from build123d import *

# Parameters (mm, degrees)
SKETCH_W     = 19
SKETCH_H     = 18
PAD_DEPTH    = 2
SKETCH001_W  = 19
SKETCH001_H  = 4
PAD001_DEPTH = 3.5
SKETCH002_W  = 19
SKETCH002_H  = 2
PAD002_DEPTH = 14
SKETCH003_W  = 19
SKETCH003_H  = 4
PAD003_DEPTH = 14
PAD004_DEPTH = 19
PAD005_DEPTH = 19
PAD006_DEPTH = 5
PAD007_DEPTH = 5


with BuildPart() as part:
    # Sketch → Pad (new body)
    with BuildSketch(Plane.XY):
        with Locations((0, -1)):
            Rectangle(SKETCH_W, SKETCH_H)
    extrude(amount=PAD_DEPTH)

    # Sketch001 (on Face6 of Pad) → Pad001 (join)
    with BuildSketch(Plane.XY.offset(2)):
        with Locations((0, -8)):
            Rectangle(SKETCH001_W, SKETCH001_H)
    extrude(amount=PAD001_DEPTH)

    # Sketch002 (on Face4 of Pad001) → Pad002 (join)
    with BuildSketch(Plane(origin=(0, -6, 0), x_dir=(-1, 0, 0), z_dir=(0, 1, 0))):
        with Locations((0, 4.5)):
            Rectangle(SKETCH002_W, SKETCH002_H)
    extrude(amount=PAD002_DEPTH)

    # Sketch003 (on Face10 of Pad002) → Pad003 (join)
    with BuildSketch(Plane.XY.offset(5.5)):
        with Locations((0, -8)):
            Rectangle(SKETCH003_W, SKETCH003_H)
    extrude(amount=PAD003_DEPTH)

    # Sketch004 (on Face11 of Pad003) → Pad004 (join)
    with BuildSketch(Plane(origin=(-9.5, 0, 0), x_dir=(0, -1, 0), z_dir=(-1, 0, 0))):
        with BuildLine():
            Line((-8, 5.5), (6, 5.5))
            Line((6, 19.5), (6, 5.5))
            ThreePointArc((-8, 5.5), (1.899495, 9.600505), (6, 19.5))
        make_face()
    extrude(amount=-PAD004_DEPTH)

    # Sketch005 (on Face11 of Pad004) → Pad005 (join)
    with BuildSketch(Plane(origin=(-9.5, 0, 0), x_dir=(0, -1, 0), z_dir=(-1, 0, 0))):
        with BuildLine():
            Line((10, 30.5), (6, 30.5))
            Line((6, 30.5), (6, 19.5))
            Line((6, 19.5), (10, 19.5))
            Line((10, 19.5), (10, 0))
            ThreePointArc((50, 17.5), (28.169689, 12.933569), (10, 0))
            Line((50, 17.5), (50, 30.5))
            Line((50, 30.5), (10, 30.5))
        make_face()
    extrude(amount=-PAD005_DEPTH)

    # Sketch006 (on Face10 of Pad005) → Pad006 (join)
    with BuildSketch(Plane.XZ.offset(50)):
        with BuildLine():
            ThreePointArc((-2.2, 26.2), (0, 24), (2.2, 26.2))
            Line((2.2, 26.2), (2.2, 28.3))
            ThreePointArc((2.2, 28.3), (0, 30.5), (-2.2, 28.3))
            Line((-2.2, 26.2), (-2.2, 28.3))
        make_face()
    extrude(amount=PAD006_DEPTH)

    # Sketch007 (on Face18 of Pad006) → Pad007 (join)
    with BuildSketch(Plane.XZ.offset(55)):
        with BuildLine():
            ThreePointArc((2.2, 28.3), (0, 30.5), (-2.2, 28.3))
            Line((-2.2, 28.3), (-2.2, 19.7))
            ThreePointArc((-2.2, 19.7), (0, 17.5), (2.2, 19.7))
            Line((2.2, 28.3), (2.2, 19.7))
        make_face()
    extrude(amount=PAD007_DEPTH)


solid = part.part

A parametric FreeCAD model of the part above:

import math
import FreeCAD as App
import Part
import Sketcher
Q = App.Units.Quantity


def add_polygon(sketch, points):
    """Adds a closed chain of lines whose ends are joined by coincident constraints."""
    first, n = sketch.GeometryCount, len(points)
    for a, b in zip(points, points[1:] + points[:1]):
        sketch.addGeometry(Part.LineSegment(App.Vector(*a, 0), App.Vector(*b, 0)), False)
    for i in range(n):
        sketch.addConstraint(Sketcher.Constraint("Coincident", first + i, 2, first + (i + 1) % n, 1))

doc = App.newDocument("Part")
body = doc.addObject("PartDesign::Body", "Body")

# Sketch on XY plane
sketch1 = body.newObject("Sketcher::SketchObject", "Sketch")
sketch1.AttachmentSupport = (doc.getObject("XY_Plane"), [""])
sketch1.MapMode = "FlatFace"
add_polygon(sketch1, [(-10, 8), (-10, -10), (10, -10), (10, 8)])  # lines 0-3
sketch1.addConstraint(Sketcher.Constraint("Vertical", 0))
sketch1.addConstraint(Sketcher.Constraint("Horizontal", 1))
sketch1.addConstraint(Sketcher.Constraint("Vertical", 2))
sketch1.addConstraint(Sketcher.Constraint("Horizontal", 3))
sketch1.addConstraint(Sketcher.Constraint("DistanceX", 1, 1, 1, 2, Q("19 mm")))
sketch1.addConstraint(Sketcher.Constraint("DistanceY", 0, 2, 0, 1, Q("18 mm")))
sketch1.addConstraint(Sketcher.Constraint("DistanceY", 0, 2, -1, 1, Q("10 mm")))
sketch1.addConstraint(Sketcher.Constraint("DistanceX", 0, 2, -1, 1, Q("9.5 mm")))
pad1 = body.newObject("PartDesign::Pad", "Pad")
pad1.Profile = sketch1
pad1.Length = 2

# Sketch on XY plane
sketch2 = body.newObject("Sketcher::SketchObject", "Sketch001")
sketch2.AttachmentSupport = (doc.getObject("XY_Plane"), [""])
sketch2.MapMode = "FlatFace"
sketch2.AttachmentOffset = App.Placement(App.Vector(0, 0, 2), App.Rotation())
add_polygon(sketch2, [(-9.5, -6), (-9.5, -10), (9.5, -10), (9.5, -6)])  # lines 0-3
sketch2.addConstraint(Sketcher.Constraint("Vertical", 0))
sketch2.addConstraint(Sketcher.Constraint("Horizontal", 1))
sketch2.addConstraint(Sketcher.Constraint("Vertical", 2))
sketch2.addConstraint(Sketcher.Constraint("Horizontal", 3))
sketch2.addConstraint(Sketcher.Constraint("DistanceX", 1, 1, 1, 2, Q("19 mm")))
sketch2.addConstraint(Sketcher.Constraint("DistanceY", 0, 2, 0, 1, Q("4 mm")))
sketch2.addConstraint(Sketcher.Constraint("DistanceY", 0, 2, -1, 1, Q("10 mm")))
sketch2.addConstraint(Sketcher.Constraint("DistanceX", 0, 2, -1, 1, Q("9.5 mm")))
pad2 = body.newObject("PartDesign::Pad", "Pad001")
pad2.Profile = sketch2
pad2.Length = 3.5

# Sketch on XZ plane
sketch3 = body.newObject("Sketcher::SketchObject", "Sketch002")
sketch3.AttachmentSupport = (doc.getObject("XZ_Plane"), [""])
sketch3.MapMode = "FlatFace"
sketch3.AttachmentOffset = App.Placement(App.Vector(0, 0, 6), App.Rotation())
add_polygon(sketch3, [(9.5, 5.5), (9.5, 3.5), (-9.5, 3.5), (-9.5, 5.5)])  # lines 0-3
sketch3.addConstraint(Sketcher.Constraint("Vertical", 0))
sketch3.addConstraint(Sketcher.Constraint("Horizontal", 1))
sketch3.addConstraint(Sketcher.Constraint("Vertical", 2))
sketch3.addConstraint(Sketcher.Constraint("Horizontal", 3))
sketch3.addConstraint(Sketcher.Constraint("DistanceX", 1, 2, 1, 1, Q("19 mm")))
sketch3.addConstraint(Sketcher.Constraint("DistanceY", 0, 2, 0, 1, Q("2 mm")))
sketch3.addConstraint(Sketcher.Constraint("DistanceX", -1, 1, 0, 2, Q("9.5 mm")))
sketch3.addConstraint(Sketcher.Constraint("DistanceY", -1, 1, 0, 2, Q("3.5 mm")))
pad3 = body.newObject("PartDesign::Pad", "Pad002")
pad3.Profile = sketch3
pad3.Length = 14
pad3.Reversed = True

# Sketch on XY plane
sketch4 = body.newObject("Sketcher::SketchObject", "Sketch003")
sketch4.AttachmentSupport = (doc.getObject("XY_Plane"), [""])
sketch4.MapMode = "FlatFace"
sketch4.AttachmentOffset = App.Placement(App.Vector(0, 0, 5.5), App.Rotation())
add_polygon(sketch4, [(-9.5, -6), (-9.5, -10), (9.5, -10), (9.5, -6)])  # lines 0-3
sketch4.addConstraint(Sketcher.Constraint("Vertical", 0))
sketch4.addConstraint(Sketcher.Constraint("Horizontal", 1))
sketch4.addConstraint(Sketcher.Constraint("Vertical", 2))
sketch4.addConstraint(Sketcher.Constraint("Horizontal", 3))
sketch4.addConstraint(Sketcher.Constraint("DistanceX", 1, 1, 1, 2, Q("19 mm")))
sketch4.addConstraint(Sketcher.Constraint("DistanceY", 0, 2, 0, 1, Q("4 mm")))
sketch4.addConstraint(Sketcher.Constraint("DistanceY", 0, 2, -1, 1, Q("10 mm")))
sketch4.addConstraint(Sketcher.Constraint("DistanceX", 0, 2, -1, 1, Q("9.5 mm")))
pad4 = body.newObject("PartDesign::Pad", "Pad003")
pad4.Profile = sketch4
pad4.Length = 14

# Sketch on YZ plane
sketch5 = body.newObject("Sketcher::SketchObject", "Sketch004")
sketch5.AttachmentSupport = (doc.getObject("YZ_Plane"), [""])
sketch5.MapMode = "FlatFace"
sketch5.AttachmentOffset = App.Placement(App.Vector(0, 0, -9.5), App.Rotation())
sketch5.addGeometry(Part.LineSegment(App.Vector(8, 6, 0), App.Vector(-6, 6, 0)), False)
sketch5.addGeometry(Part.LineSegment(App.Vector(-6, 6, 0), App.Vector(-6, 20, 0)), False)
sketch5.addGeometry(Part.ArcOfCircle(Part.Circle(App.Vector(8, 19, 0), App.Vector(0, 0, 1), 14), math.radians(180), math.radians(270)), False)
sketch5.addConstraint(Sketcher.Constraint("Coincident", 0, 2, 1, 1))
sketch5.addConstraint(Sketcher.Constraint("Tangent", 1, 2, 2, 1))
sketch5.addConstraint(Sketcher.Constraint("Tangent", 2, 2, 0, 1))
sketch5.addConstraint(Sketcher.Constraint("Horizontal", 0))
sketch5.addConstraint(Sketcher.Constraint("Vertical", 1))
sketch5.addConstraint(Sketcher.Constraint("Radius", 2, Q("14 mm")))
sketch5.addConstraint(Sketcher.Constraint("DistanceX", -1, 1, 2, 3, Q("8 mm")))
sketch5.addConstraint(Sketcher.Constraint("DistanceY", -1, 1, 2, 3, Q("19.5 mm")))
pad5 = body.newObject("PartDesign::Pad", "Pad004")
pad5.Profile = sketch5
pad5.Length = 19

# Sketch on YZ plane
sketch6 = body.newObject("Sketcher::SketchObject", "Sketch005")
sketch6.AttachmentSupport = (doc.getObject("YZ_Plane"), [""])
sketch6.MapMode = "FlatFace"
sketch6.AttachmentOffset = App.Placement(App.Vector(0, 0, -9.5), App.Rotation())
sketch6.addGeometry(Part.LineSegment(App.Vector(-6, 30.5, 0), App.Vector(-6, 19.5, 0)), False)
sketch6.addGeometry(Part.LineSegment(App.Vector(-6, 19.5, 0), App.Vector(-10, 19.5, 0)), False)
sketch6.addGeometry(Part.LineSegment(App.Vector(-10, 19.5, 0), App.Vector(-10, 0, 0)), False)
sketch6.addGeometry(Part.ArcOfCircle(Part.Circle(App.Vector(-50, -37, 0), App.Vector(0, 0, 1), 54.5), math.radians(43), math.radians(90)), False)
sketch6.addGeometry(Part.LineSegment(App.Vector(-50, 17.5, 0), App.Vector(-50, 30.5, 0)), False)
sketch6.addGeometry(Part.LineSegment(App.Vector(-50, 30.5, 0), App.Vector(-6, 30.5, 0)), False)
sketch6.addConstraint(Sketcher.Constraint("Coincident", 0, 2, 1, 1))
sketch6.addConstraint(Sketcher.Constraint("Coincident", 1, 2, 2, 1))
sketch6.addConstraint(Sketcher.Constraint("Coincident", 2, 2, 3, 1))
sketch6.addConstraint(Sketcher.Constraint("Coincident", 3, 2, 4, 1))
sketch6.addConstraint(Sketcher.Constraint("Coincident", 4, 2, 5, 1))
sketch6.addConstraint(Sketcher.Constraint("Coincident", 5, 2, 0, 1))
sketch6.addConstraint(Sketcher.Constraint("Vertical", 0))
sketch6.addConstraint(Sketcher.Constraint("Horizontal", 1))
sketch6.addConstraint(Sketcher.Constraint("Vertical", 2))
sketch6.addConstraint(Sketcher.Constraint("Vertical", 4))
sketch6.addConstraint(Sketcher.Constraint("Horizontal", 5))
sketch6.addConstraint(Sketcher.Constraint("PointOnObject", 2, 2, -1))
sketch6.addConstraint(Sketcher.Constraint("DistanceX", 1, 2, 1, 1, Q("4 mm")))
sketch6.addConstraint(Sketcher.Constraint("DistanceX", 5, 1, 5, 2, Q("44 mm")))
sketch6.addConstraint(Sketcher.Constraint("DistanceY", 0, 2, 0, 1, Q("11 mm")))
sketch6.addConstraint(Sketcher.Constraint("DistanceY", 4, 1, 4, 2, Q("13 mm")))
sketch6.addConstraint(Sketcher.Constraint("DistanceY", 2, 2, 2, 1, Q("19.5 mm")))
sketch6.addConstraint(Sketcher.Constraint("DistanceX", 3, 3, -1, 1, Q("50.000002 mm")))
sketch6.addConstraint(Sketcher.Constraint("DistanceX", 0, 2, -1, 1, Q("6 mm")))
pad6 = body.newObject("PartDesign::Pad", "Pad005")
pad6.Profile = sketch6
pad6.Length = 19

# Sketch on XZ plane
sketch7 = body.newObject("Sketcher::SketchObject", "Sketch006")
sketch7.AttachmentSupport = (doc.getObject("XZ_Plane"), [""])
sketch7.MapMode = "FlatFace"
sketch7.AttachmentOffset = App.Placement(App.Vector(0, 0, 50), App.Rotation())
sketch7.addGeometry(Part.ArcOfCircle(Part.Circle(App.Vector(0, 26.2, 0), App.Vector(0, 0, 1), 2.2), math.radians(180), math.radians(360)), False)
sketch7.addGeometry(Part.LineSegment(App.Vector(2.2, 26.2, 0), App.Vector(2.2, 28.3, 0)), False)
sketch7.addGeometry(Part.ArcOfCircle(Part.Circle(App.Vector(0, 28.3, 0), App.Vector(0, 0, 1), 2.2), math.radians(0), math.radians(180)), False)
sketch7.addGeometry(Part.LineSegment(App.Vector(-2.2, 28.3, 0), App.Vector(-2.2, 26.2, 0)), False)
sketch7.addConstraint(Sketcher.Constraint("Tangent", 0, 2, 1, 1))
sketch7.addConstraint(Sketcher.Constraint("Tangent", 1, 2, 2, 1))
sketch7.addConstraint(Sketcher.Constraint("Tangent", 2, 2, 3, 1))
sketch7.addConstraint(Sketcher.Constraint("Tangent", 3, 2, 0, 1))
sketch7.addConstraint(Sketcher.Constraint("Vertical", 1))
sketch7.addConstraint(Sketcher.Constraint("Vertical", 3))
sketch7.addConstraint(Sketcher.Constraint("PointOnObject", 0, 3, -2))
sketch7.addConstraint(Sketcher.Constraint("Radius", 0, Q("2.2 mm")))
sketch7.addConstraint(Sketcher.Constraint("DistanceY", 1, 1, 1, 2, Q("2.1 mm")))
sketch7.addConstraint(Sketcher.Constraint("DistanceY", -1, 1, 0, 3, Q("26.2 mm")))
pad7 = body.newObject("PartDesign::Pad", "Pad006")
pad7.Profile = sketch7
pad7.Length = 5

# Sketch on XZ plane
sketch8 = body.newObject("Sketcher::SketchObject", "Sketch007")
sketch8.AttachmentSupport = (doc.getObject("XZ_Plane"), [""])
sketch8.MapMode = "FlatFace"
sketch8.AttachmentOffset = App.Placement(App.Vector(0, 0, 55), App.Rotation())
sketch8.addGeometry(Part.ArcOfCircle(Part.Circle(App.Vector(0, 28.3, 0), App.Vector(0, 0, 1), 2.2), math.radians(0), math.radians(180)), False)
sketch8.addGeometry(Part.LineSegment(App.Vector(-2.2, 28.3, 0), App.Vector(-2.2, 19.7, 0)), False)
sketch8.addGeometry(Part.ArcOfCircle(Part.Circle(App.Vector(0, 19.7, 0), App.Vector(0, 0, 1), 2.2), math.radians(180), math.radians(360)), False)
sketch8.addGeometry(Part.LineSegment(App.Vector(2.2, 19.7, 0), App.Vector(2.2, 28.3, 0)), False)
sketch8.addConstraint(Sketcher.Constraint("Tangent", 0, 2, 1, 1))
sketch8.addConstraint(Sketcher.Constraint("Tangent", 1, 2, 2, 1))
sketch8.addConstraint(Sketcher.Constraint("Tangent", 2, 2, 3, 1))
sketch8.addConstraint(Sketcher.Constraint("Tangent", 3, 2, 0, 1))
sketch8.addConstraint(Sketcher.Constraint("Vertical", 1))
sketch8.addConstraint(Sketcher.Constraint("Vertical", 3))
sketch8.addConstraint(Sketcher.Constraint("PointOnObject", 0, 3, -2))
sketch8.addConstraint(Sketcher.Constraint("Radius", 0, Q("2.2 mm")))
sketch8.addConstraint(Sketcher.Constraint("DistanceY", 1, 2, 1, 1, Q("8.6 mm")))
sketch8.addConstraint(Sketcher.Constraint("DistanceY", -1, 1, 0, 3, Q("28.3 mm")))
pad8 = body.newObject("PartDesign::Pad", "Pad007")
pad8.Profile = sketch8
pad8.Length = 5

doc.recompute()
